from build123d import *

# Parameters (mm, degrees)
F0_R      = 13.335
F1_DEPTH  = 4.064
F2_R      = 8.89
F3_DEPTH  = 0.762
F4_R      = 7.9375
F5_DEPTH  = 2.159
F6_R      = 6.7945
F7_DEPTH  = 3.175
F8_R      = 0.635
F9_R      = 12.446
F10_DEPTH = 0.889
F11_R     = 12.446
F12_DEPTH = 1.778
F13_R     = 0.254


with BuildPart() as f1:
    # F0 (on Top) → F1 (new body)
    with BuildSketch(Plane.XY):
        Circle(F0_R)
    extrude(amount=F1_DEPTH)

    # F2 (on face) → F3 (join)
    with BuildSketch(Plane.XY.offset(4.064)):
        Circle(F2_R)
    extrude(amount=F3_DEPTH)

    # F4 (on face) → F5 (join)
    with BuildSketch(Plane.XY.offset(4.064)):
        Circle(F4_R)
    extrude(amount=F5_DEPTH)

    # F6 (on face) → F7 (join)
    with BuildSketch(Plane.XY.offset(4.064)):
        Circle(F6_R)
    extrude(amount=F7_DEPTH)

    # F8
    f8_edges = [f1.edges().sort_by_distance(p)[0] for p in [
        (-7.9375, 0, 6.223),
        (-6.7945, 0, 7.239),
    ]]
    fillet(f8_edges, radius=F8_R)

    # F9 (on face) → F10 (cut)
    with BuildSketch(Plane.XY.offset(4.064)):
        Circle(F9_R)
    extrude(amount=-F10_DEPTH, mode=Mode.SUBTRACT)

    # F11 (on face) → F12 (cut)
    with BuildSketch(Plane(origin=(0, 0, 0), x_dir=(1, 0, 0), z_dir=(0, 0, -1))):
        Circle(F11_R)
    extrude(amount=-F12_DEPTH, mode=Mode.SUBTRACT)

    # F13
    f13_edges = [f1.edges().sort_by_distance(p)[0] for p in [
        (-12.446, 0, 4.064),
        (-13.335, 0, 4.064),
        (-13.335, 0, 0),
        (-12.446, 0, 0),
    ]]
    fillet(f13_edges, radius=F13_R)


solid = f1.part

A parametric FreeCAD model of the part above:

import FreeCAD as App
import Part
import Sketcher
Q = App.Units.Quantity


def edges_at(feature, points):
    """Names of the edges that pass closest to the given points."""
    edges = feature.Shape.Edges
    near = lambda p: min(range(len(edges)), key=lambda i: edges[i].distToShape(Part.Vertex(*p))[0])
    return sorted({f"Edge{near(p) + 1}" for p in points})

doc = App.newDocument("Part")
body = doc.addObject("PartDesign::Body", "Body")
body.AllowCompound = True

# Sketch on XY plane
sketch1 = body.newObject("Sketcher::SketchObject", "Sketch")
sketch1.AttachmentSupport = (doc.getObject("XY_Plane"), [""])
sketch1.MapMode = "FlatFace"
sketch1.addGeometry(Part.Circle(App.Vector(0, 0, 0), App.Vector(0, 0, 1), 13), False)
sketch1.addConstraint([
    Sketcher.Constraint("Coincident", 0, 3, -1, 1),
    Sketcher.Constraint("Diameter", 0, Q("1.05 in")),
])
pad1 = body.newObject("PartDesign::Pad", "Pad")
pad1.Profile = sketch1
pad1.Length = Q("0.16 in")

# Sketch on XY plane
sketch2 = body.newObject("Sketcher::SketchObject", "Sketch001")
sketch2.AttachmentSupport = (doc.getObject("XY_Plane"), [""])
sketch2.MapMode = "FlatFace"
sketch2.AttachmentOffset = App.Placement(App.Vector(0, 0, 0.16 * 25.4), App.Rotation())
sketch2.addGeometry(Part.Circle(App.Vector(0, 0, 0), App.Vector(0, 0, 1), 9), False)
sketch2.addConstraint([
    Sketcher.Constraint("Coincident", 0, 3, -1, 1),
    Sketcher.Constraint("Diameter", 0, Q("0.7 in")),
])
pad2 = body.newObject("PartDesign::Pad", "Pad001")
pad2.Profile = sketch2
pad2.Length = Q("0.03 in")

# Sketch on XY plane
sketch3 = body.newObject("Sketcher::SketchObject", "Sketch002")
sketch3.AttachmentSupport = (doc.getObject("XY_Plane"), [""])
sketch3.MapMode = "FlatFace"
sketch3.AttachmentOffset = App.Placement(App.Vector(0, 0, 0.16 * 25.4), App.Rotation())
sketch3.addGeometry(Part.Circle(App.Vector(0, 0, 0), App.Vector(0, 0, 1), 8), False)
sketch3.addConstraint([
    Sketcher.Constraint("Coincident", 0, 3, -1, 1),
    Sketcher.Constraint("Diameter", 0, Q("0.625 in")),
])
pad3 = body.newObject("PartDesign::Pad", "Pad002")
pad3.Profile = sketch3
pad3.Length = Q("0.085 in")

# Sketch on XY plane
sketch4 = body.newObject("Sketcher::SketchObject", "Sketch003")
sketch4.AttachmentSupport = (doc.getObject("XY_Plane"), [""])
sketch4.MapMode = "FlatFace"
sketch4.AttachmentOffset = App.Placement(App.Vector(0, 0, 0.16 * 25.4), App.Rotation())
sketch4.addGeometry(Part.Circle(App.Vector(0, 0, 0), App.Vector(0, 0, 1), 7), False)
sketch4.addConstraint([
    Sketcher.Constraint("Coincident", 0, 3, -1, 1),
    Sketcher.Constraint("Diameter", 0, Q("0.535 in")),
])
pad4 = body.newObject("PartDesign::Pad", "Pad003")
pad4.Profile = sketch4
pad4.Length = Q("0.125 in")
doc.recompute()

fillet = body.newObject("PartDesign::Fillet", "Fillet")
fillet.Base = (pad4, edges_at(pad4, [(-7.938, 0, 6.223), (-6.795, 0, 7.239)]))
fillet.Radius = Q("0.025 in")

# Sketch on XY plane
sketch5 = body.newObject("Sketcher::SketchObject", "Sketch004")
sketch5.AttachmentSupport = (doc.getObject("XY_Plane"), [""])
sketch5.MapMode = "FlatFace"
sketch5.AttachmentOffset = App.Placement(App.Vector(0, 0, 0.16 * 25.4), App.Rotation())
sketch5.addGeometry(Part.Circle(App.Vector(0, 0, 0), App.Vector(0, 0, 1), 12), False)
sketch5.addConstraint([
    Sketcher.Constraint("Coincident", 0, 3, -1, 1),
    Sketcher.Constraint("Diameter", 0, Q("0.98 in")),
])
pocket1 = body.newObject("PartDesign::Pocket", "Pocket")
pocket1.Profile = sketch5
pocket1.Length = Q("0.035 in")

# Sketch on XY plane
sketch6 = body.newObject("Sketcher::SketchObject", "Sketch005")
sketch6.AttachmentSupport = (doc.getObject("XY_Plane"), [""])
sketch6.MapMode = "FlatFace"
sketch6.addGeometry(Part.Circle(App.Vector(0, 0, 0), App.Vector(0, 0, 1), 12), False)
sketch6.addConstraint([
    Sketcher.Constraint("Coincident", 0, 3, -1, 1),
    Sketcher.Constraint("Diameter", 0, Q("0.98 in")),
])
pocket2 = body.newObject("PartDesign::Pocket", "Pocket001")
pocket2.Profile = sketch6
pocket2.Length = Q("0.07 in")
pocket2.Reversed = True
doc.recompute()

fillet2 = body.newObject("PartDesign::Fillet", "Fillet001")
fillet2.Base = (pocket2, edges_at(pocket2, [
    (-12.446, 0, 4.064),
    (-13.335, 0, 4.064),
    (-13.335, 0, 0),
    (-12.446, 0, 0),
]))
fillet2.Radius = Q("0.01 in")

doc.recompute()
